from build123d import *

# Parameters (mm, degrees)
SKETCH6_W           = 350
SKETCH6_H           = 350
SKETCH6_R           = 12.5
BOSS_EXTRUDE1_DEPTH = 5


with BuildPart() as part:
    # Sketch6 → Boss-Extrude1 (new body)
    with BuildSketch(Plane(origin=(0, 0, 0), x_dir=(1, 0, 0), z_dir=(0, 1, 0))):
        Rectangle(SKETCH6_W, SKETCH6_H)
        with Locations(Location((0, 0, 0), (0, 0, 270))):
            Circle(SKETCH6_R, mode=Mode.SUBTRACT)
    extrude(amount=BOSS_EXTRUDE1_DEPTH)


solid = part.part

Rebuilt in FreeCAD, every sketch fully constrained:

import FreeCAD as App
import Part
import Sketcher
Q = App.Units.Quantity

doc = App.newDocument("Part")
params = doc.addObject("Spreadsheet::Sheet", "Params")
for row, (alias, value) in enumerate([
    ("sketch1_diameter", "25 mm"),
    ("sketch1_width", "350 mm"),
    ("pad1_length", "5 mm"),
], start=1):
    params.set(f"A{row}", alias)
    params.set(f"B{row}", "=" + value)
    params.setAlias(f"B{row}", alias)

body = doc.addObject("PartDesign::Body", "Body")

sketch1 = doc.addObject("Sketcher::SketchObject", "Sketch")
body.addObject(sketch1)
sketch1.AttachmentSupport = (doc.XZ_Plane, [""])
sketch1.MapMode = "FlatFace"
sketch1.addGeometry([
    Part.LineSegment(App.Vector(-175, -175, 0), App.Vector(-175, 175, 0)),
    Part.LineSegment(App.Vector(-175, 175, 0), App.Vector(175, 175, 0)),
    Part.LineSegment(App.Vector(175, 175, 0), App.Vector(175, -175, 0)),
    Part.LineSegment(App.Vector(175, -175, 0), App.Vector(-175, -175, 0)),
    Part.Circle(App.Vector(0, 0, 0), App.Vector(0, 0, 1), 12),
], False)
sketch1.addConstraint([
    Sketcher.Constraint("Coincident", 0, 2, 1, 1),
    Sketcher.Constraint("Coincident", 1, 2, 2, 1),
    Sketcher.Constraint("Coincident", 2, 2, 3, 1),
    Sketcher.Constraint("Coincident", 3, 2, 0, 1),
    Sketcher.Constraint("Vertical", 0),
    Sketcher.Constraint("Horizontal", 1),
    Sketcher.Constraint("Vertical", 2),
    Sketcher.Constraint("Horizontal", 3),
    Sketcher.Constraint("Coincident", 4, 3, -1, 1),
    Sketcher.Constraint("Symmetric", 0, 2, 2, 2, -1, 1),
    Sketcher.Constraint("Equal", 3, 0),
    Sketcher.Constraint("Diameter", 4, Q("25 mm")),
    Sketcher.Constraint("DistanceX", 1, 1, 1, 2, Q("350 mm")),
])
sketch1.setExpression("Constraints[11]", "Params.sketch1_diameter")
sketch1.setExpression("Constraints[12]", "Params.sketch1_width")
pad1 = doc.addObject("PartDesign::Pad", "Pad")
body.addObject(pad1)
pad1.Profile = sketch1
pad1.setExpression("Length", "Params.pad1_length")
pad1.Reversed = True

doc.recompute()
